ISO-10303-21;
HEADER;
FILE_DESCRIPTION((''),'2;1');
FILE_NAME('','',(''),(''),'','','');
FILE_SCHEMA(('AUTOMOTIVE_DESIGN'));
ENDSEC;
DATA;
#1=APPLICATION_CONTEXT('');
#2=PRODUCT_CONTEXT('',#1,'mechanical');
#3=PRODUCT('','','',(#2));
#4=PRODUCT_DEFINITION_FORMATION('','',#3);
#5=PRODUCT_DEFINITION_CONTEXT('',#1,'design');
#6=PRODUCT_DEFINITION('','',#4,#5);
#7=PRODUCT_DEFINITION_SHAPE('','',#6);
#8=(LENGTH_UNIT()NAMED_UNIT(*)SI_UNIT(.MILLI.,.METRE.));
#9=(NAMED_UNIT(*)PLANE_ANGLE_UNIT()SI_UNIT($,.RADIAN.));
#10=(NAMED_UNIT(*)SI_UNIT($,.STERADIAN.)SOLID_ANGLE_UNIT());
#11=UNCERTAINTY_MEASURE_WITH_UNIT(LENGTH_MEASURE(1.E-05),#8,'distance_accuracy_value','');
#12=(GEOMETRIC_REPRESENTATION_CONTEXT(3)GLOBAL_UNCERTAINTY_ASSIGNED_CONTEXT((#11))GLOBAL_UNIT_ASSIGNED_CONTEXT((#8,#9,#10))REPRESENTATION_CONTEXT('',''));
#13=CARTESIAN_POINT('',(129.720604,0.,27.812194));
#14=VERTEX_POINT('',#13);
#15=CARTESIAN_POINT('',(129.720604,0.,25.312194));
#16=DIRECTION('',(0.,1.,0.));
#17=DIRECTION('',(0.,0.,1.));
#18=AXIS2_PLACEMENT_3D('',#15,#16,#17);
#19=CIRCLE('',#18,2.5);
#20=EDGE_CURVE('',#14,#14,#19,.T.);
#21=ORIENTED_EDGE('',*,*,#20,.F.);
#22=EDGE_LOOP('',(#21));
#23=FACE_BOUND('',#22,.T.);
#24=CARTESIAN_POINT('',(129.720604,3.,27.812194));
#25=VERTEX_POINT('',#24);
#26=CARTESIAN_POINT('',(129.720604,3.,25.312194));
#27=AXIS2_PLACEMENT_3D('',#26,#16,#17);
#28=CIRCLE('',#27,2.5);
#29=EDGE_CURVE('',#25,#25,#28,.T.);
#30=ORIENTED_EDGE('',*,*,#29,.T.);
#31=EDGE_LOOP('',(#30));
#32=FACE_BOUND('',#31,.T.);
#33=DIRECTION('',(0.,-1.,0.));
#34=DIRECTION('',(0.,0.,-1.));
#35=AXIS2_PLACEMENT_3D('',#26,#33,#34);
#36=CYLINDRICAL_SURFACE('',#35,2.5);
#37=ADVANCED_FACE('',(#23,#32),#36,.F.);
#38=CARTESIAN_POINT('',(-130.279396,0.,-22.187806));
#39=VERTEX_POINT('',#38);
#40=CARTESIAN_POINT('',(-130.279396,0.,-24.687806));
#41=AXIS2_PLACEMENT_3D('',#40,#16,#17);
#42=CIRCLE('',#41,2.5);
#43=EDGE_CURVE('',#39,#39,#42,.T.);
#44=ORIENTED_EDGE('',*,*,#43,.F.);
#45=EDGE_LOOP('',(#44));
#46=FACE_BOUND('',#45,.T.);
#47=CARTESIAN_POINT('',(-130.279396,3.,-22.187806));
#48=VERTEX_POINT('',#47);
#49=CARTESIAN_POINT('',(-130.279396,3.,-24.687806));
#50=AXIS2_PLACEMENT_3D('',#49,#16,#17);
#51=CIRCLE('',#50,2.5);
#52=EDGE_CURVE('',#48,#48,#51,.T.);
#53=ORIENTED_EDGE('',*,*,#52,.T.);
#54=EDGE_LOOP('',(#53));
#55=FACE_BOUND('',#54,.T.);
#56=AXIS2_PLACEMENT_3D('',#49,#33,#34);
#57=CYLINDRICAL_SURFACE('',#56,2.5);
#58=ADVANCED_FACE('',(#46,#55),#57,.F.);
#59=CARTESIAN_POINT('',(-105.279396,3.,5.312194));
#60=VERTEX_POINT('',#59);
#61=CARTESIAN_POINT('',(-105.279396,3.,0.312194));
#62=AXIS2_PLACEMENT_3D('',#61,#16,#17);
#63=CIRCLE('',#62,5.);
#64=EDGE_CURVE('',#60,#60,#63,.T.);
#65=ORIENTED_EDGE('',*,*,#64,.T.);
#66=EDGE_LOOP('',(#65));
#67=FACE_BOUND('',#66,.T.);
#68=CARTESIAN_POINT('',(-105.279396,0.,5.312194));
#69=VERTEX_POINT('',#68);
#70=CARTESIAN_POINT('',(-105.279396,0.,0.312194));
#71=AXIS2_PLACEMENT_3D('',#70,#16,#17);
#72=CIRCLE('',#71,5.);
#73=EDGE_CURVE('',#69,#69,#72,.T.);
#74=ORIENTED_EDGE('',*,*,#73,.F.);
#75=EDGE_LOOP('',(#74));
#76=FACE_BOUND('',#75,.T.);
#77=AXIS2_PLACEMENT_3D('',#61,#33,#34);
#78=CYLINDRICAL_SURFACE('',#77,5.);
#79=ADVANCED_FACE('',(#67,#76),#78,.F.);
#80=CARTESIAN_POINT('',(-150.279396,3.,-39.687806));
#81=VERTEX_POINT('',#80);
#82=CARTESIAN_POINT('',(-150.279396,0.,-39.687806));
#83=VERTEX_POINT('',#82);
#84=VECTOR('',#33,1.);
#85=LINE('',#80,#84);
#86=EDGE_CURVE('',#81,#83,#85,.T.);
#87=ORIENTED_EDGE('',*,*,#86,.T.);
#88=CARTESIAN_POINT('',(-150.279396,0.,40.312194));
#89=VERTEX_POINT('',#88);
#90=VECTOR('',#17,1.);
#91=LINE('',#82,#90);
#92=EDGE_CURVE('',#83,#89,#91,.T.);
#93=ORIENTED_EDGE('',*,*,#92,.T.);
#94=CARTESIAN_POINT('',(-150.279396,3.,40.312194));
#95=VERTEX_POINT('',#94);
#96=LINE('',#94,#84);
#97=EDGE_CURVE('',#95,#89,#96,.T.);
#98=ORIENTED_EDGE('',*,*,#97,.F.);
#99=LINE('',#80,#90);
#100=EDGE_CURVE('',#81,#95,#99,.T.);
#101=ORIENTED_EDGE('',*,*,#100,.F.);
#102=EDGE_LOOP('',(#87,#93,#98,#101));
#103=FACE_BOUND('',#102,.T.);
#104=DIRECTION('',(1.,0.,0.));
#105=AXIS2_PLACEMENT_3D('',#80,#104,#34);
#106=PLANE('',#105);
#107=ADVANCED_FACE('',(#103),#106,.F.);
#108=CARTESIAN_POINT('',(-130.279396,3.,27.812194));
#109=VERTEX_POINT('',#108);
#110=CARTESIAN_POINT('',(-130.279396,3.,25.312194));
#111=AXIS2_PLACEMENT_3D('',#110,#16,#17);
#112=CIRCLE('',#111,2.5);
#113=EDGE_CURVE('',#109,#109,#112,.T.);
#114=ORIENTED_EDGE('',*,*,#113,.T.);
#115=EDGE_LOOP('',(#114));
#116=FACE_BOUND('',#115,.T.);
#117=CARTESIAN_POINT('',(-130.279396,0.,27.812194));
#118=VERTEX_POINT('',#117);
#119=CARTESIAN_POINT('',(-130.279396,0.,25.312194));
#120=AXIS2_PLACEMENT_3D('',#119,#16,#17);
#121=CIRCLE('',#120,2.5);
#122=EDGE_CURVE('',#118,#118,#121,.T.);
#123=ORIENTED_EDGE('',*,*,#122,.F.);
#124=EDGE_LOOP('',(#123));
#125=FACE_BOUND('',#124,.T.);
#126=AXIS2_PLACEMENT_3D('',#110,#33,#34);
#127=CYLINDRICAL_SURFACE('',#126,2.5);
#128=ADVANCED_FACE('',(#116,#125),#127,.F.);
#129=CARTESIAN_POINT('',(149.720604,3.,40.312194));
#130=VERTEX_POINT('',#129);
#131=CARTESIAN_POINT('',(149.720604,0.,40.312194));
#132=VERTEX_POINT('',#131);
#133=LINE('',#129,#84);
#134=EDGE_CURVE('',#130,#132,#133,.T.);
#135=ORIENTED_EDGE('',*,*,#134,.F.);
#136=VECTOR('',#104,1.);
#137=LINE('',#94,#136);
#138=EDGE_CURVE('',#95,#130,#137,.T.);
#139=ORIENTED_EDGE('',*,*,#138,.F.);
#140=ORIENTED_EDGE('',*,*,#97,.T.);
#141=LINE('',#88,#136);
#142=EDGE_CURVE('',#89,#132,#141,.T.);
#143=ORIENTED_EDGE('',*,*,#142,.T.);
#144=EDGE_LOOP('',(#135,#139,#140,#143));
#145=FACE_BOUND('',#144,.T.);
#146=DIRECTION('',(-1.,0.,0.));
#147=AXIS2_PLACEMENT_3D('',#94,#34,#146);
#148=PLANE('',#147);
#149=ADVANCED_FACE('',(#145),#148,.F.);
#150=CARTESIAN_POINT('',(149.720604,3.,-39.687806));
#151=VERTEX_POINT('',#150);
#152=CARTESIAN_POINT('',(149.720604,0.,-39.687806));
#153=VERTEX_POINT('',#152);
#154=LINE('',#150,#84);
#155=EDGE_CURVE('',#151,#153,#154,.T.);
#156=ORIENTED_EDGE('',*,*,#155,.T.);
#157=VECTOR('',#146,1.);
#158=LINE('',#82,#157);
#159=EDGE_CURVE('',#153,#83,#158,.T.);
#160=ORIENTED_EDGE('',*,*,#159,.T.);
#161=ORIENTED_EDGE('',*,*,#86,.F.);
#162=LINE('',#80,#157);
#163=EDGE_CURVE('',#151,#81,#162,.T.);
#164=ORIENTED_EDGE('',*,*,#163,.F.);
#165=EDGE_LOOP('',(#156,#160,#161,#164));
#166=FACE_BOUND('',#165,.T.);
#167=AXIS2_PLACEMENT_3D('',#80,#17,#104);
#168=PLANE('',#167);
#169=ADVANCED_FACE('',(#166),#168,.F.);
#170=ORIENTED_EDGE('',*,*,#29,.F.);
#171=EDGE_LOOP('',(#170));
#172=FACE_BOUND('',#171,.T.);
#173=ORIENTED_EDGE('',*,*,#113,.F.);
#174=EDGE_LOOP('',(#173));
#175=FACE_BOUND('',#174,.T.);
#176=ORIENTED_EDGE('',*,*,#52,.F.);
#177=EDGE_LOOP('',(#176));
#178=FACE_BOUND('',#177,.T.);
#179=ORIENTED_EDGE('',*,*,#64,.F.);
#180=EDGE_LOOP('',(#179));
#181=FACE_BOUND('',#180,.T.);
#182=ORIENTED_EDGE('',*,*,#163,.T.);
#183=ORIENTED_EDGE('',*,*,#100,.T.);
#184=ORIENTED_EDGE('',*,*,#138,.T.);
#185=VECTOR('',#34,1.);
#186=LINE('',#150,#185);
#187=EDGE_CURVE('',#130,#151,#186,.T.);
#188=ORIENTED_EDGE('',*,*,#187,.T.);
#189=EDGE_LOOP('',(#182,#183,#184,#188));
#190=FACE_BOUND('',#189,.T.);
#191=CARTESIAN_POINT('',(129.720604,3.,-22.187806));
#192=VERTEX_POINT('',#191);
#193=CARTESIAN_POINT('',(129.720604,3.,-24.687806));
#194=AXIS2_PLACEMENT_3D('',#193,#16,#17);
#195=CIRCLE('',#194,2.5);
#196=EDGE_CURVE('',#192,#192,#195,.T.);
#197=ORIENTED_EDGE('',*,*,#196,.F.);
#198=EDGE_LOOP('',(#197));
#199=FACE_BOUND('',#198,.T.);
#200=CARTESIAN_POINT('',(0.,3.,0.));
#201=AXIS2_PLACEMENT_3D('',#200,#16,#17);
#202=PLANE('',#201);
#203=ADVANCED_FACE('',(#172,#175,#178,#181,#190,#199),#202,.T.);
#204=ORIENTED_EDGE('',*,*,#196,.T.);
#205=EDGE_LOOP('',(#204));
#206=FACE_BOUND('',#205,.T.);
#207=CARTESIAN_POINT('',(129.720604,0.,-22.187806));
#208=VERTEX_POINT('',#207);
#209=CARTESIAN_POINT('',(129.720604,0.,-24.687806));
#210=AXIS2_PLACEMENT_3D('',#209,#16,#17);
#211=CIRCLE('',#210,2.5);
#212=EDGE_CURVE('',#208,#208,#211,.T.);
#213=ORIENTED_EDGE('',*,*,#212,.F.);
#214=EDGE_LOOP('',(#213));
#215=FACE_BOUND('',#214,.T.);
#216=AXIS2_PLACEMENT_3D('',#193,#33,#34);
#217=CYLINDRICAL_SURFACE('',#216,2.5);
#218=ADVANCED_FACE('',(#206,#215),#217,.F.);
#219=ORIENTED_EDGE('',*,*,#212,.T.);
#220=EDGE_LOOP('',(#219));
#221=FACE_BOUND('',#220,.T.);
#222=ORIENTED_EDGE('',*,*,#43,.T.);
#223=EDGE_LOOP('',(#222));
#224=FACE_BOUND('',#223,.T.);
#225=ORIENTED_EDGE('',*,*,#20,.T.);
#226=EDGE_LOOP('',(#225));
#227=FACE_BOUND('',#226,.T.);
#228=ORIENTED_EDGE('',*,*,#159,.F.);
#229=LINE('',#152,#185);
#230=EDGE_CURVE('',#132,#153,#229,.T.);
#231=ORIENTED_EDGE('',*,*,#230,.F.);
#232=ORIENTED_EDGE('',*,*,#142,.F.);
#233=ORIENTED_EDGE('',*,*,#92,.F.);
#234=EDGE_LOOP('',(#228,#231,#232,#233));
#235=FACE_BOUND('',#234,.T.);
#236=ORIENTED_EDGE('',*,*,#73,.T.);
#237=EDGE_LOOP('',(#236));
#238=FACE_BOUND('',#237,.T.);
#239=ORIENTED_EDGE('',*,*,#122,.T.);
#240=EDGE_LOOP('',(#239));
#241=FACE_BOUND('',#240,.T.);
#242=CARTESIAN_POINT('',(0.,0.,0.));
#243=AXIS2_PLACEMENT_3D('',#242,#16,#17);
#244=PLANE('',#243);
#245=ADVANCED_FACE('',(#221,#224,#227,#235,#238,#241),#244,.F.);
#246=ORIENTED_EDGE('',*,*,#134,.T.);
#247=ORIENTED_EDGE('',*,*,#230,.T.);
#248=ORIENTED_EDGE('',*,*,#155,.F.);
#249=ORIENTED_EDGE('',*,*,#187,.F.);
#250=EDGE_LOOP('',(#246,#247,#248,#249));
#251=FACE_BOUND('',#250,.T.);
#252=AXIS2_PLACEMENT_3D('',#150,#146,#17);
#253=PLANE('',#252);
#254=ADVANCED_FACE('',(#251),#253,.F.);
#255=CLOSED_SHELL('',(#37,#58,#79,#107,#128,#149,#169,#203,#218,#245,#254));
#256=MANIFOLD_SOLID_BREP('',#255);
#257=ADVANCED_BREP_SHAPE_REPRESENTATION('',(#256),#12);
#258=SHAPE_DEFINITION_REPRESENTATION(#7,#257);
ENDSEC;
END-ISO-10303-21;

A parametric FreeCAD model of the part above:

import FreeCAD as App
import Part
import Sketcher
Q = App.Units.Quantity


def add_polygon(sketch, points):
    """Adds a closed chain of lines whose ends are joined by coincident constraints."""
    first, n = sketch.GeometryCount, len(points)
    for a, b in zip(points, points[1:] + points[:1]):
        sketch.addGeometry(Part.LineSegment(App.Vector(*a, 0), App.Vector(*b, 0)), False)
    for i in range(n):
        sketch.addConstraint(Sketcher.Constraint("Coincident", first + i, 2, first + (i + 1) % n, 1))

doc = App.newDocument("Part")
body = doc.addObject("PartDesign::Body", "Body")

sketch1 = body.newObject("Sketcher::SketchObject", "Sketch")
sketch1.AttachmentSupport = (doc.getObject("XZ_Plane"), [""])
sketch1.MapMode = "FlatFace"
add_polygon(sketch1, [(-150.3, -39.7), (-150.3, 40.3), (149.7, 40.3), (149.7, -39.7)])
sketch1.addGeometry(Part.Circle(App.Vector(-130.3, 25.3, 0), App.Vector(0, 0, 1), 2.5), False)
sketch1.addGeometry(Part.Circle(App.Vector(129.7, 25.3, 0), App.Vector(0, 0, 1), 2.5), False)
sketch1.addGeometry(Part.Circle(App.Vector(-105.3, 0.3, 0), App.Vector(0, 0, 1), 5), False)
sketch1.addGeometry(Part.Circle(App.Vector(-130.3, -24.7, 0), App.Vector(0, 0, 1), 2.5), False)
sketch1.addGeometry(Part.Circle(App.Vector(129.7, -24.7, 0), App.Vector(0, 0, 1), 2.5), False)
sketch1.addConstraint([
    Sketcher.Constraint("Vertical", 0),
    Sketcher.Constraint("Horizontal", 1),
    Sketcher.Constraint("Vertical", 2),
    Sketcher.Constraint("Horizontal", 3),
    Sketcher.Constraint("Equal", 4, 5),
    Sketcher.Constraint("Equal", 5, 7),
    Sketcher.Constraint("Equal", 7, 8),
    Sketcher.Constraint("Horizontal", 4, 3, 5, 3),
    Sketcher.Constraint("Horizontal", 7, 3, 8, 3),
    Sketcher.Constraint("Vertical", 4, 3, 7, 3),
    Sketcher.Constraint("Vertical", 5, 3, 8, 3),
    Sketcher.Constraint("Diameter", 4, Q("5 mm")),
    Sketcher.Constraint("Diameter", 6, Q("10 mm")),
    Sketcher.Constraint("DistanceX", 1, 1, 1, 2, Q("300 mm")),
    Sketcher.Constraint("DistanceY", 0, 1, 0, 2, Q("80 mm")),
    Sketcher.Constraint("DistanceX", 4, 3, 5, 3, Q("260 mm")),
    Sketcher.Constraint("DistanceX", 4, 3, 6, 3, Q("25 mm")),
    Sketcher.Constraint("DistanceY", 6, 3, 4, 3, Q("25 mm")),
    Sketcher.Constraint("DistanceY", 7, 3, 6, 3, Q("25 mm")),
    Sketcher.Constraint("DistanceX", 0, 2, 4, 3, Q("20 mm")),
    Sketcher.Constraint("DistanceY", 4, 3, 0, 2, Q("15 mm")),
    Sketcher.Constraint("DistanceX", 4, 3, -1, 1, Q("130.279396 mm")),
    Sketcher.Constraint("DistanceY", -1, 1, 4, 3, Q("25.312194 mm")),
])
pad1 = body.newObject("PartDesign::Pad", "Pad")
pad1.Profile = sketch1
pad1.Length = 3
pad1.Reversed = True

doc.recompute()
